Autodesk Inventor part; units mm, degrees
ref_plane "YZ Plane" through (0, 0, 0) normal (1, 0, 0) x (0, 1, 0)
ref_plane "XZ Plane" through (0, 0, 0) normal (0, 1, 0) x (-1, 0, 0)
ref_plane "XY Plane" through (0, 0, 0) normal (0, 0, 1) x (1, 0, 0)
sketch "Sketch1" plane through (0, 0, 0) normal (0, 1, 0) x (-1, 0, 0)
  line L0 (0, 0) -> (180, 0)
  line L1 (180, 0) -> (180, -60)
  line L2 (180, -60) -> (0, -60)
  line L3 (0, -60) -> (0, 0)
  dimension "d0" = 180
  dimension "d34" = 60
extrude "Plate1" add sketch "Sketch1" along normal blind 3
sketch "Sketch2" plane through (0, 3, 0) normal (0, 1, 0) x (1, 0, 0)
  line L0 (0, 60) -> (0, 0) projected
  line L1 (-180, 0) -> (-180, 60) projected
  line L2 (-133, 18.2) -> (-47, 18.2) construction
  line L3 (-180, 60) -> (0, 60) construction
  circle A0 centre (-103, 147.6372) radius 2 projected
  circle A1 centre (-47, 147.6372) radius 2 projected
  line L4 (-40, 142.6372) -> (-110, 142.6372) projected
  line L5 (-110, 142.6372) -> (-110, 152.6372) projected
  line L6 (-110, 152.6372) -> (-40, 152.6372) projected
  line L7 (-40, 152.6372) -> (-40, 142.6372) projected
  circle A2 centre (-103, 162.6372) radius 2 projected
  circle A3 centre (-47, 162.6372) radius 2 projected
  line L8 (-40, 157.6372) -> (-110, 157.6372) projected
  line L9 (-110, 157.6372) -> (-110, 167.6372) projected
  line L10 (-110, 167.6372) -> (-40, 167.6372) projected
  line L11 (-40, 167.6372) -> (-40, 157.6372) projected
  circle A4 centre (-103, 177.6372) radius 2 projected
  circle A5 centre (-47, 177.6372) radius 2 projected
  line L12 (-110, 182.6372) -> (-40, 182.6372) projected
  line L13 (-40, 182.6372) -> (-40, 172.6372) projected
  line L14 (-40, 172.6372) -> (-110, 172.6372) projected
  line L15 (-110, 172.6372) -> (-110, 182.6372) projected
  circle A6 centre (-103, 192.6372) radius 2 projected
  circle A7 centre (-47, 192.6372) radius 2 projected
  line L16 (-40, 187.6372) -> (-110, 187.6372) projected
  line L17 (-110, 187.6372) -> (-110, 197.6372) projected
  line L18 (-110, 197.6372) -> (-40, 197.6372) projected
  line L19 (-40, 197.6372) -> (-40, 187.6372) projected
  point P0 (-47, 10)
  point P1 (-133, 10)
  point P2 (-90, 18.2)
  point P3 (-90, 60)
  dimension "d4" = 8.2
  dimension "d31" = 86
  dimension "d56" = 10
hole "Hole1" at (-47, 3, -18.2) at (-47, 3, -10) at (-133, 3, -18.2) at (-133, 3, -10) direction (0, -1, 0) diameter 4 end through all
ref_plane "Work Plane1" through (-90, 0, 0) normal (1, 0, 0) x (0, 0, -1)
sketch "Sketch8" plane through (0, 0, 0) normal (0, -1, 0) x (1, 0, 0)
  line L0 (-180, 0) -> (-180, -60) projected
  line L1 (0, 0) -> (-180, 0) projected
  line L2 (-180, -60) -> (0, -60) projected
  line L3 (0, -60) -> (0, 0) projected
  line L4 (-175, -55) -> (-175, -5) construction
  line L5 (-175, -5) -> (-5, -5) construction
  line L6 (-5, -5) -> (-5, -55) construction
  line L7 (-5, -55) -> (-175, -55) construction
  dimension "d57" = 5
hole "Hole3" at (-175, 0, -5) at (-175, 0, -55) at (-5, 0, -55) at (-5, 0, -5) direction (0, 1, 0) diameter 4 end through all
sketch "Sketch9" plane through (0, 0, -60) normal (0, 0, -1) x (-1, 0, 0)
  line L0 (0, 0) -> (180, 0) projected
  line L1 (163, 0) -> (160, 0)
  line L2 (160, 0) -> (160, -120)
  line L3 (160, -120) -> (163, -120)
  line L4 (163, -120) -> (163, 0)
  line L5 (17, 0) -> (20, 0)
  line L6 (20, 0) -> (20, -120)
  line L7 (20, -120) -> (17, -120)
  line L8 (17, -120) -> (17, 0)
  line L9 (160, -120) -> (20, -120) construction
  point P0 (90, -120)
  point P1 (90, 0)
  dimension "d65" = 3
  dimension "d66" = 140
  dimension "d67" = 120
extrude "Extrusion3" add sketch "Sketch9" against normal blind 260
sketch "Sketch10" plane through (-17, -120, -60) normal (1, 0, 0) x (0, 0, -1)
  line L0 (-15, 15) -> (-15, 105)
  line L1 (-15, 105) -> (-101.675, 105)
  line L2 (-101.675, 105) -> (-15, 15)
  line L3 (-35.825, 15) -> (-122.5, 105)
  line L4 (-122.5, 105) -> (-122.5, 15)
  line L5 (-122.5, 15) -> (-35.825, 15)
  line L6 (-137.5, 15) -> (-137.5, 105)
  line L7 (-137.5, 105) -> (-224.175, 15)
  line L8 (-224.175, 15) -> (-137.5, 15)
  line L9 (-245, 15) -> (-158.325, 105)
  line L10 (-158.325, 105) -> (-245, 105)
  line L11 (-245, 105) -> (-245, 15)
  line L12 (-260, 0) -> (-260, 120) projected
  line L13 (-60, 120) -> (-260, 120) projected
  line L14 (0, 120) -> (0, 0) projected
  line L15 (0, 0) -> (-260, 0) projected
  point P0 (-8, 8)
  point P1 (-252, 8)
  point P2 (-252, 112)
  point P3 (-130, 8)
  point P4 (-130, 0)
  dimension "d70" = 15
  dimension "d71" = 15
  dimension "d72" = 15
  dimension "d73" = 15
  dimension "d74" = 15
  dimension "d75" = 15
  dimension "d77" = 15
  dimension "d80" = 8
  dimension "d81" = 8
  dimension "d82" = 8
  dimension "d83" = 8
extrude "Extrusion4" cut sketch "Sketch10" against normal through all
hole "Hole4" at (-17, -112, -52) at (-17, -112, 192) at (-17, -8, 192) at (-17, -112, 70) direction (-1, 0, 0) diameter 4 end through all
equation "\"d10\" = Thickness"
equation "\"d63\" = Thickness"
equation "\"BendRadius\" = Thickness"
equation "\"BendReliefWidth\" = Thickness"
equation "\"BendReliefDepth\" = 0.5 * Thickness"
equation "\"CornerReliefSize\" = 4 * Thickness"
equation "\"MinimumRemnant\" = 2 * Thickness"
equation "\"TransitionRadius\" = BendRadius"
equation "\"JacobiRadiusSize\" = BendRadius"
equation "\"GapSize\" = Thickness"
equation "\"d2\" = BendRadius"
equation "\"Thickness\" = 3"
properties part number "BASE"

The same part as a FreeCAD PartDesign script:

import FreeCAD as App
import Part
import Sketcher

V = App.Vector
Q = App.Units.Quantity


def add_polygon(sketch, points):
    """Adds a closed chain of lines whose ends are joined by coincident constraints."""
    first, n = sketch.GeometryCount, len(points)
    for a, b in zip(points, points[1:] + points[:1]):
        sketch.addGeometry(Part.LineSegment(App.Vector(*a, 0), App.Vector(*b, 0)), False)
    for i in range(n):
        sketch.addConstraint(Sketcher.Constraint("Coincident", first + i, 2, first + (i + 1) % n, 1))

doc = App.newDocument("Part")
body = doc.addObject("PartDesign::Body", "Body")

# Sketch on XZ plane
sketch1 = body.newObject("Sketcher::SketchObject", "Sketch")
sketch1.AttachmentSupport = (doc.getObject("XZ_Plane"), [""])
sketch1.MapMode = "FlatFace"
add_polygon(sketch1, [(-180, 0), (0, 0), (0, -60), (-180, -60)])  # lines 0-3
sketch1.addConstraint([
    Sketcher.Constraint("Horizontal", 0),
    Sketcher.Constraint("Vertical", 1),
    Sketcher.Constraint("Horizontal", 2),
    Sketcher.Constraint("Vertical", 3),
    Sketcher.Constraint("Coincident", 0, 2, -1, 1),
    Sketcher.Constraint("DistanceX", 0, 1, 0, 2, Q("180 mm")),
    Sketcher.Constraint("DistanceY", 1, 2, 1, 1, Q("60 mm")),
])
pad1 = body.newObject("PartDesign::Pad", "Pad")
pad1.Profile = sketch1
pad1.Length = 3
pad1.Reversed = True

# Sketch on XZ plane
sketch2 = body.newObject("Sketcher::SketchObject", "Sketch001")
sketch2.AttachmentSupport = (doc.getObject("XZ_Plane"), [""])
sketch2.MapMode = "FlatFace"
sketch2.AttachmentOffset = App.Placement(V(0, 0, -3), App.Rotation())
sketch2.addGeometry([
    Part.Circle(V(-47, -18.2, 0), V(0, 0, 1), 2),
    Part.Circle(V(-47, -10, 0), V(0, 0, 1), 2),
    Part.Circle(V(-133, -18.2, 0), V(0, 0, 1), 2),
    Part.Circle(V(-133, -10, 0), V(0, 0, 1), 2),
], False)
sketch2.addConstraint([
    Sketcher.Constraint("Equal", 0, 1),
    Sketcher.Constraint("Equal", 1, 2),
    Sketcher.Constraint("Equal", 2, 3),
    Sketcher.Constraint("Horizontal", 0, 3, 2, 3),
    Sketcher.Constraint("Horizontal", 1, 3, 3, 3),
    Sketcher.Constraint("Vertical", 0, 3, 1, 3),
    Sketcher.Constraint("Vertical", 2, 3, 3, 3),
    Sketcher.Constraint("Diameter", 0, Q("4 mm")),
    Sketcher.Constraint("DistanceX", 0, 3, -1, 1, Q("47 mm")),
    Sketcher.Constraint("DistanceY", 1, 3, -1, 1, Q("10 mm")),
    Sketcher.Constraint("DistanceX", 2, 3, -1, 1, Q("133 mm")),
    Sketcher.Constraint("DistanceY", 0, 3, -1, 1, Q("18.2 mm")),
])
doc.recompute()
hole = body.newObject("PartDesign::Hole", "Hole")
hole.Profile = sketch2
hole.ThreadType = "None"
hole.Diameter = 4
hole.DepthType = "ThroughAll"
hole.Reversed = True

# Sketch on XZ plane
sketch3 = body.newObject("Sketcher::SketchObject", "Sketch002")
sketch3.AttachmentSupport = (doc.getObject("XZ_Plane"), [""])
sketch3.MapMode = "FlatFace"
sketch3.addGeometry([
    Part.Circle(V(-175, -5, 0), V(0, 0, 1), 2),
    Part.Circle(V(-175, -55, 0), V(0, 0, 1), 2),
    Part.Circle(V(-5, -55, 0), V(0, 0, 1), 2),
    Part.Circle(V(-5, -5, 0), V(0, 0, 1), 2),
], False)
sketch3.addConstraint([
    Sketcher.Constraint("Equal", 0, 1),
    Sketcher.Constraint("Equal", 1, 2),
    Sketcher.Constraint("Equal", 2, 3),
    Sketcher.Constraint("Horizontal", 1, 3, 2, 3),
    Sketcher.Constraint("Horizontal", 0, 3, 3, 3),
    Sketcher.Constraint("Vertical", 0, 3, 1, 3),
    Sketcher.Constraint("Vertical", 2, 3, 3, 3),
    Sketcher.Constraint("Diameter", 0, Q("4 mm")),
    Sketcher.Constraint("DistanceX", 0, 3, -1, 1, Q("175 mm")),
    Sketcher.Constraint("DistanceY", 0, 3, -1, 1, Q("5 mm")),
    Sketcher.Constraint("DistanceY", 1, 3, -1, 1, Q("55 mm")),
    Sketcher.Constraint("DistanceX", 2, 3, -1, 1, Q("5 mm")),
])
doc.recompute()
hole2 = body.newObject("PartDesign::Hole", "Hole001")
hole2.Profile = sketch3
hole2.ThreadType = "None"
hole2.Diameter = 4
hole2.DepthType = "ThroughAll"

# Sketch on XY plane
sketch4 = body.newObject("Sketcher::SketchObject", "Sketch003")
sketch4.AttachmentSupport = (doc.getObject("XY_Plane"), [""])
sketch4.MapMode = "FlatFace"
sketch4.AttachmentOffset = App.Placement(V(0, 0, -60), App.Rotation())
add_polygon(sketch4, [(-163, 0), (-160, 0), (-160, -120), (-163, -120)])  # lines 0-3
add_polygon(sketch4, [(-20, 0), (-17, 0), (-17, -120), (-20, -120)])  # lines 4-7
sketch4.addConstraint([
    Sketcher.Constraint("Horizontal", 0),
    Sketcher.Constraint("Vertical", 1),
    Sketcher.Constraint("Horizontal", 2),
    Sketcher.Constraint("Vertical", 3),
    Sketcher.Constraint("Horizontal", 4),
    Sketcher.Constraint("Vertical", 5),
    Sketcher.Constraint("Horizontal", 6),
    Sketcher.Constraint("Vertical", 7),
    Sketcher.Constraint("PointOnObject", 0, 2, -1),
    Sketcher.Constraint("PointOnObject", 4, 2, -1),
    Sketcher.Constraint("Horizontal", 2, 2, 5, 2),
    Sketcher.Constraint("Equal", 2, 4),
    Sketcher.Constraint("DistanceX", 0, 1, 0, 2, Q("3 mm")),
    Sketcher.Constraint("DistanceY", 1, 2, 1, 1, Q("120 mm")),
    Sketcher.Constraint("DistanceX", 1, 2, 6, 2, Q("140 mm")),
    Sketcher.Constraint("DistanceX", 0, 2, -1, 1, Q("160 mm")),
])
pad2 = body.newObject("PartDesign::Pad", "Pad001")
pad2.Profile = sketch4
pad2.Length = 260

# Sketch on YZ plane
sketch5 = body.newObject("Sketcher::SketchObject", "Sketch004")
sketch5.AttachmentSupport = (doc.getObject("YZ_Plane"), [""])
sketch5.MapMode = "FlatFace"
sketch5.AttachmentOffset = App.Placement(V(0, 0, -17), App.Rotation())
add_polygon(sketch5, [(-15, 42), (-105, -45), (-15, -45)])  # lines 0-2
add_polygon(sketch5, [(-105, 62), (-105, -24), (-15, 62)])  # lines 3-5
add_polygon(sketch5, [(-105, 164), (-105, 78), (-15, 78)])  # lines 6-8
add_polygon(sketch5, [(-15, 185), (-105, 185), (-15, 98)])  # lines 9-11
sketch5.addConstraint([
    Sketcher.Constraint("Horizontal", 1),
    Sketcher.Constraint("Vertical", 2),
    Sketcher.Constraint("Vertical", 3),
    Sketcher.Constraint("Horizontal", 5),
    Sketcher.Constraint("Vertical", 6),
    Sketcher.Constraint("Horizontal", 7),
    Sketcher.Constraint("Horizontal", 9),
    Sketcher.Constraint("Vertical", 11),
    Sketcher.Constraint("Parallel", 0, 4),
    Sketcher.Constraint("Parallel", 8, 10),
    Sketcher.Constraint("Vertical", 0, 2, 3, 2),
    Sketcher.Constraint("Vertical", 2, 2, 4, 2),
    Sketcher.Constraint("Vertical", 5, 2, 6, 2),
    Sketcher.Constraint("Vertical", 4, 2, 7, 2),
    Sketcher.Constraint("Vertical", 8, 2, 9, 2),
    Sketcher.Constraint("Vertical", 7, 2, 10, 2),
    Sketcher.Constraint("Equal", 3, 6),
    Sketcher.Constraint("DistanceX", 1, 2, -1, 1, Q("15 mm")),
    Sketcher.Constraint("DistanceY", 5, 2, 6, 2, Q("15 mm")),
    Sketcher.Constraint("DistanceX", 1, 1, 1, 2, Q("90 mm")),
    Sketcher.Constraint("DistanceY", 0, 2, -1, 1, Q("45 mm")),
    Sketcher.Constraint("DistanceY", -1, 1, 9, 2, Q("185 mm")),
    Sketcher.Constraint("DistanceY", -1, 1, 4, 2, Q("62.5 mm")),
    Sketcher.Constraint("DistanceY", 2, 1, 2, 2, Q("86.675 mm")),
])
pocket1 = body.newObject("PartDesign::Pocket", "Pocket")
pocket1.Profile = sketch5
pocket1.Type = "ThroughAll"

# Sketch on YZ plane
sketch6 = body.newObject("Sketcher::SketchObject", "Sketch005")
sketch6.AttachmentSupport = (doc.getObject("YZ_Plane"), [""])
sketch6.MapMode = "FlatFace"
sketch6.AttachmentOffset = App.Placement(V(0, 0, -17), App.Rotation())
sketch6.addGeometry([
    Part.Circle(V(-112, -52, 0), V(0, 0, 1), 2),
    Part.Circle(V(-112, 192, 0), V(0, 0, 1), 2),
    Part.Circle(V(-8, 192, 0), V(0, 0, 1), 2),
    Part.Circle(V(-112, 70, 0), V(0, 0, 1), 2),
], False)
sketch6.addConstraint([
    Sketcher.Constraint("Equal", 0, 1),
    Sketcher.Constraint("Equal", 1, 2),
    Sketcher.Constraint("Equal", 2, 3),
    Sketcher.Constraint("Horizontal", 1, 3, 2, 3),
    Sketcher.Constraint("Vertical", 0, 3, 1, 3),
    Sketcher.Constraint("Vertical", 1, 3, 3, 3),
    Sketcher.Constraint("Diameter", 0, Q("4 mm")),
    Sketcher.Constraint("DistanceX", 0, 3, -1, 1, Q("112 mm")),
    Sketcher.Constraint("DistanceY", 0, 3, -1, 1, Q("52 mm")),
    Sketcher.Constraint("DistanceY", -1, 1, 1, 3, Q("192 mm")),
    Sketcher.Constraint("DistanceX", 2, 3, -1, 1, Q("8 mm")),
    Sketcher.Constraint("DistanceY", -1, 1, 3, 3, Q("70 mm")),
])
doc.recompute()
hole3 = body.newObject("PartDesign::Hole", "Hole002")
hole3.Profile = sketch6
hole3.ThreadType = "None"
hole3.Diameter = 4
hole3.DepthType = "ThroughAll"

doc.recompute()
